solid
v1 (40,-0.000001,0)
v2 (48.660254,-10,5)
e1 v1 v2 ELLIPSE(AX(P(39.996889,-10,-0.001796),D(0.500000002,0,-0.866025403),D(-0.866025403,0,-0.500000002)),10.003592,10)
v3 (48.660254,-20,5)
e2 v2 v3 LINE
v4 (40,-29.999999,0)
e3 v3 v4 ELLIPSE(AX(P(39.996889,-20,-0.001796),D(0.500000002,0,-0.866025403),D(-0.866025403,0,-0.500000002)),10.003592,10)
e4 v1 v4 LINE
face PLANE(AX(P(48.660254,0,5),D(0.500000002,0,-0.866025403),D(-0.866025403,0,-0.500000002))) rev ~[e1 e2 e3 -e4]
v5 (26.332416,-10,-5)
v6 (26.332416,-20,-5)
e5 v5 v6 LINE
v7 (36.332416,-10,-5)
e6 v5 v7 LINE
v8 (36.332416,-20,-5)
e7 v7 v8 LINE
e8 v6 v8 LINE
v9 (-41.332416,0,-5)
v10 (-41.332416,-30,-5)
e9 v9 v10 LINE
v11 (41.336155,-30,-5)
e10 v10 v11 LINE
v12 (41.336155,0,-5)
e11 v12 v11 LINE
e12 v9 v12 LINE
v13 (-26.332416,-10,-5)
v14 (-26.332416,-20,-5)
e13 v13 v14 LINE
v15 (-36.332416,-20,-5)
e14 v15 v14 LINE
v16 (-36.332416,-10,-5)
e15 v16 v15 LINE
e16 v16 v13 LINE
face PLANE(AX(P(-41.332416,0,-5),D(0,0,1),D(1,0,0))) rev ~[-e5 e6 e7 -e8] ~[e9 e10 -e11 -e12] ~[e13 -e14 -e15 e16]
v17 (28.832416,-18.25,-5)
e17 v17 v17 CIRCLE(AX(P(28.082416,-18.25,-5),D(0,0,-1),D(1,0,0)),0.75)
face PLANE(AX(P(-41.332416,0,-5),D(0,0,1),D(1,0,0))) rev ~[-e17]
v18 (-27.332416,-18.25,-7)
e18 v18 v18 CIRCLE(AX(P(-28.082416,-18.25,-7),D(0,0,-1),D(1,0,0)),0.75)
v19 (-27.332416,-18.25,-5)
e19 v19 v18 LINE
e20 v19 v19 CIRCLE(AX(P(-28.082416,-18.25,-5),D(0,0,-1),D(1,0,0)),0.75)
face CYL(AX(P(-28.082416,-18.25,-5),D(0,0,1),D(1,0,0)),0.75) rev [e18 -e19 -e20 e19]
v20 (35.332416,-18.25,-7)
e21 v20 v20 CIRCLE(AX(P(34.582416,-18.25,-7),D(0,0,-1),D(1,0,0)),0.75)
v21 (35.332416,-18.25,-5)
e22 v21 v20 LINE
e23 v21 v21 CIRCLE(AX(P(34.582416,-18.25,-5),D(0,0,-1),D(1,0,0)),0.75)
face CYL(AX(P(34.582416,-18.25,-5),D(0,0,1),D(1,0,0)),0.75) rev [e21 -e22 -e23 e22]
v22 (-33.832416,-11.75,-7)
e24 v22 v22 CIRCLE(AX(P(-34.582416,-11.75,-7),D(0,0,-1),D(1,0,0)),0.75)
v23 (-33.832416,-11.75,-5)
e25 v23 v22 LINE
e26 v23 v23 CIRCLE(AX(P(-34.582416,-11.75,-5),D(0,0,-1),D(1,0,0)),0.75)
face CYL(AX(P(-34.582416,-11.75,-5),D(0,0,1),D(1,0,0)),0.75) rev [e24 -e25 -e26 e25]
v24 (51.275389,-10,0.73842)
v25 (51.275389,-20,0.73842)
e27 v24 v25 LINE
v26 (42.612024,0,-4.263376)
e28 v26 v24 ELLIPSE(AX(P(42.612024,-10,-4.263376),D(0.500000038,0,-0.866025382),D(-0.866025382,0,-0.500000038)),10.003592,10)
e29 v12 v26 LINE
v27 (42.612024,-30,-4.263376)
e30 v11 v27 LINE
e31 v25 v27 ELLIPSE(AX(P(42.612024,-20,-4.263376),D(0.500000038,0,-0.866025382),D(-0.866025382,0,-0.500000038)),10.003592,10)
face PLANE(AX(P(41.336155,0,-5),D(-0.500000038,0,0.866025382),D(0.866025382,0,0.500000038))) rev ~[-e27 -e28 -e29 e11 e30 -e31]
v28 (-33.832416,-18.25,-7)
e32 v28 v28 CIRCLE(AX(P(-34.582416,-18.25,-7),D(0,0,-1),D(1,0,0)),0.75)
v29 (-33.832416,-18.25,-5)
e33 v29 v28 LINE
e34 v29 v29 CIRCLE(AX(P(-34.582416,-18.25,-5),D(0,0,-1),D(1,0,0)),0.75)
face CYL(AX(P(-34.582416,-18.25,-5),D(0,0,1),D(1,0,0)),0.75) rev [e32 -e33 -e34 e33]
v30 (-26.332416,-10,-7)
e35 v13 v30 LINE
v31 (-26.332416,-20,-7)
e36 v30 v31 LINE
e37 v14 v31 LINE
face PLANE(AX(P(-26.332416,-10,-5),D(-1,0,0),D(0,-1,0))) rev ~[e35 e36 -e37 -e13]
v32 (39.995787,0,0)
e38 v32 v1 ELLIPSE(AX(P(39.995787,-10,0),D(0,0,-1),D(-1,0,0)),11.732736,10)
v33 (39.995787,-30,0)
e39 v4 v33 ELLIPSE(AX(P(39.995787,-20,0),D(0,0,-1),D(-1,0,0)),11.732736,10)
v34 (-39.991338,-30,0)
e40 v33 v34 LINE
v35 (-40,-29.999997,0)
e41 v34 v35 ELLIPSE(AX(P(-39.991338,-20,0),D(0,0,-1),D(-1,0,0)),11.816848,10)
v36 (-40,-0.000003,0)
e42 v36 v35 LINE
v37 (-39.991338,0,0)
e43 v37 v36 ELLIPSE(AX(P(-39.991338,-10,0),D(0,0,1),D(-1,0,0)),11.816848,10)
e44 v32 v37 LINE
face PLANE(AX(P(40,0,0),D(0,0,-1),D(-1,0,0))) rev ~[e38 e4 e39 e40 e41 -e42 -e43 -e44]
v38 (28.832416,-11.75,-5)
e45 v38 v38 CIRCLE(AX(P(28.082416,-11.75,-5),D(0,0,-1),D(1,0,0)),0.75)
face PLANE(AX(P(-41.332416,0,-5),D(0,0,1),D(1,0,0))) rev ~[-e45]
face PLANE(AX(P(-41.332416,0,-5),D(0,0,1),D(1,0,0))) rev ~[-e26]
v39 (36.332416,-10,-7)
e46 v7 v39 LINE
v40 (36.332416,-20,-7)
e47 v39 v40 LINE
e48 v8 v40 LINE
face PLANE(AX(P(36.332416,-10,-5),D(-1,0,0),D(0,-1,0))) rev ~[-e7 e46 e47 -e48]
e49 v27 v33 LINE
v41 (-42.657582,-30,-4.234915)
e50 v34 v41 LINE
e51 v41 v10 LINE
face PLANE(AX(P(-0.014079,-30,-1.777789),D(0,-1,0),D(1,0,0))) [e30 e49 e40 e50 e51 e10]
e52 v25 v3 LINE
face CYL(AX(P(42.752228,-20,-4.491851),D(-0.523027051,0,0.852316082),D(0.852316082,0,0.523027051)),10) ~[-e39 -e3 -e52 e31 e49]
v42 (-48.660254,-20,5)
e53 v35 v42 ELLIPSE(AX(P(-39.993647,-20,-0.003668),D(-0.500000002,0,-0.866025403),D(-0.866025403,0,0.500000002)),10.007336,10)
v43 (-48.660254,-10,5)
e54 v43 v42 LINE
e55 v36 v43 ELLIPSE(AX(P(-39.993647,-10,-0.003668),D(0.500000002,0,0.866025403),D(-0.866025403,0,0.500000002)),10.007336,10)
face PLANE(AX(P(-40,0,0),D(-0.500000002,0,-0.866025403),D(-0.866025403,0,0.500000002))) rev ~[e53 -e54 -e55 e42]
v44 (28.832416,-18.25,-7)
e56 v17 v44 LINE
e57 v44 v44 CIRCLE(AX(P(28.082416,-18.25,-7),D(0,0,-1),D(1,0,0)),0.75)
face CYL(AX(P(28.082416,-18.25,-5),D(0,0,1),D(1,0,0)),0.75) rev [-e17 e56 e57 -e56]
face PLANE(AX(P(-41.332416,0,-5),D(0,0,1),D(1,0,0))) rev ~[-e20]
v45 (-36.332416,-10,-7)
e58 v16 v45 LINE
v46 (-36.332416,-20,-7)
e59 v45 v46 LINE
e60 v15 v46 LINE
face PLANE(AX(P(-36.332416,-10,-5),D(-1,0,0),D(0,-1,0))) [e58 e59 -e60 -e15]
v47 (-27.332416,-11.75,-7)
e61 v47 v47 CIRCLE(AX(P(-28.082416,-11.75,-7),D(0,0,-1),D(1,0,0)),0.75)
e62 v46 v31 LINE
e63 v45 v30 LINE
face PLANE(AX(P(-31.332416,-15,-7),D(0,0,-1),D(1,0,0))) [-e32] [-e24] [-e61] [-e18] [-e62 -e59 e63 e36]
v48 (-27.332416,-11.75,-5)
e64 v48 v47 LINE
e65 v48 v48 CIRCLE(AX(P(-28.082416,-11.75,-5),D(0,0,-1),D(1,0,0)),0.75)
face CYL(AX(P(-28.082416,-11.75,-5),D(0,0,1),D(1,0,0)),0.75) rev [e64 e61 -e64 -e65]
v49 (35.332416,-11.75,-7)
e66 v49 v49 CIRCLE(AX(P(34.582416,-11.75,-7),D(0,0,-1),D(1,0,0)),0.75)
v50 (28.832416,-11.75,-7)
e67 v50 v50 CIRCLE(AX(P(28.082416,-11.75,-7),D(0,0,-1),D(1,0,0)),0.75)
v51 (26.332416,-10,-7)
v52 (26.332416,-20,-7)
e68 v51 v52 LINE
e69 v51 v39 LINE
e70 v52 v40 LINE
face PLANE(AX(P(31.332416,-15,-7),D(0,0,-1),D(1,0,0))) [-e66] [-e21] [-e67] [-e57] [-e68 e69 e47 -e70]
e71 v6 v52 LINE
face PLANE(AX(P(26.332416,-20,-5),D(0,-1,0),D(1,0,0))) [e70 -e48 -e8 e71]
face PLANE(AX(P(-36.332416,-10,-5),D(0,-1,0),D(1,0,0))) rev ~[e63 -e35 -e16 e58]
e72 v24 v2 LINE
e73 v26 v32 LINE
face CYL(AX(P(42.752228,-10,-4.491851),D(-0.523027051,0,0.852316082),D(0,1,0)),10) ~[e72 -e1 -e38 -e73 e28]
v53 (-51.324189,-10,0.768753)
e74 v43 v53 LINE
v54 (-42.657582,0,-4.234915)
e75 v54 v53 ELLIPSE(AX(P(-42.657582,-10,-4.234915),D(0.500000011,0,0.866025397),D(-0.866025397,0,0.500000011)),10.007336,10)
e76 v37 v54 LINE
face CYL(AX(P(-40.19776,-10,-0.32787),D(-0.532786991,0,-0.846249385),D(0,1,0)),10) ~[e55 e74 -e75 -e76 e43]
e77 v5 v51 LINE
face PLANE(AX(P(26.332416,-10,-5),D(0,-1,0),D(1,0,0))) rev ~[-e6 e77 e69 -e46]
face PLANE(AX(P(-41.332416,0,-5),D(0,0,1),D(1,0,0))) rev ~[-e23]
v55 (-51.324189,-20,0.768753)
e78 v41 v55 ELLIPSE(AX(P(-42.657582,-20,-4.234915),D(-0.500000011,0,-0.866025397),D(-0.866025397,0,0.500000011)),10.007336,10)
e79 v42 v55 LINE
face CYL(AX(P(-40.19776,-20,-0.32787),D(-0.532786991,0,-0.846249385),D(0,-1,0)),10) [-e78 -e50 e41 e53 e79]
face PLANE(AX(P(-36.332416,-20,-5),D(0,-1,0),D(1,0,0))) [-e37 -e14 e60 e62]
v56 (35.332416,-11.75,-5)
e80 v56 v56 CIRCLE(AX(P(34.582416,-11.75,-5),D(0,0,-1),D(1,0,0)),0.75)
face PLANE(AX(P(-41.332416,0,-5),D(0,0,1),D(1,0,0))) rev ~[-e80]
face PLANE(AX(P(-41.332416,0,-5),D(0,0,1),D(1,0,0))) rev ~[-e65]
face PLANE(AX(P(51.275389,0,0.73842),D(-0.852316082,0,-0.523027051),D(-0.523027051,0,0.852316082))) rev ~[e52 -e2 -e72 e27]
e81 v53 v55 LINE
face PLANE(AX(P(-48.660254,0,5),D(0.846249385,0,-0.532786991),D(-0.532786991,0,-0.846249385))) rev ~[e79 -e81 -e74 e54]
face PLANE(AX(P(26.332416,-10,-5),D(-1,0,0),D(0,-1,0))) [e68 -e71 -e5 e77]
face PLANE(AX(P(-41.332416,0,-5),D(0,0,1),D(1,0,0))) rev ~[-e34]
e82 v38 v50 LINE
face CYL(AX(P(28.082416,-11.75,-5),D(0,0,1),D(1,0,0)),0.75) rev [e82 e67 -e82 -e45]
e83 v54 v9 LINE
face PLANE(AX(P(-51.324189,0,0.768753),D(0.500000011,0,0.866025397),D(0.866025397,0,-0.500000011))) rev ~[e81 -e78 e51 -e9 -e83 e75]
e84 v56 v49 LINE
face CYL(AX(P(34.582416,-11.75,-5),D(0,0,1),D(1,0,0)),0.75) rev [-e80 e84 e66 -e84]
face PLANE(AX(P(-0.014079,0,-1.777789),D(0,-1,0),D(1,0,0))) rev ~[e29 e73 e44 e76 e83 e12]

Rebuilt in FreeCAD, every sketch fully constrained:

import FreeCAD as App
import Part
import Sketcher
Q = App.Units.Quantity


def edges_at(feature, points):
    """Names of the edges that pass closest to the given points."""
    edges = feature.Shape.Edges
    near = lambda p: min(range(len(edges)), key=lambda i: edges[i].distToShape(Part.Vertex(*p))[0])
    return sorted({f"Edge{near(p) + 1}" for p in points})

doc = App.newDocument("Part")
params = doc.addObject("Spreadsheet::Sheet", "Params")
for row, (alias, value) in enumerate([
    ("sketch1_width", "80 mm"),
    ("sketch1_length", "10 mm"),
    ("sketch1_length2", "5 mm"),
    ("pad1_length", "30 mm"),
    ("fillet_radius", "10 mm"),
    ("fillet2_radius", "10 mm"),
    ("fillet3_radius", "10 mm"),
    ("fillet4_radius", "10 mm"),
    ("sketch2_diameter", "1.5 mm"),
    ("sketch2_width", "10 mm"),
    ("pad2_length", "2 mm"),
], start=1):
    params.set(f"A{row}", alias)
    params.set(f"B{row}", "=" + value)
    params.setAlias(f"B{row}", alias)

body = doc.addObject("PartDesign::Body", "Body")

# Sketch on XZ plane
sketch1 = body.newObject("Sketcher::SketchObject", "Sketch")
sketch1.AttachmentSupport = (doc.getObject("XZ_Plane"), [""])
sketch1.MapMode = "FlatFace"
sketch1.addGeometry(Part.LineSegment(App.Vector(40, 0, 0), App.Vector(-40, 0, 0)), False)
sketch1.addGeometry(Part.LineSegment(App.Vector(-40, 0, 0), App.Vector(-48.7, 5, 0)), False)
sketch1.addGeometry(Part.LineSegment(App.Vector(-48.7, 5, 0), App.Vector(-51.3, 0.8, 0)), False)
sketch1.addGeometry(Part.LineSegment(App.Vector(-51.3, 0.8, 0), App.Vector(-41.3, -5, 0)), False)
sketch1.addGeometry(Part.LineSegment(App.Vector(-41.3, -5, 0), App.Vector(41.3, -5, 0)), False)
sketch1.addGeometry(Part.LineSegment(App.Vector(41.3, -5, 0), App.Vector(51.3, 0.7, 0)), False)
sketch1.addGeometry(Part.LineSegment(App.Vector(51.3, 0.7, 0), App.Vector(48.7, 5, 0)), False)
sketch1.addGeometry(Part.LineSegment(App.Vector(48.7, 5, 0), App.Vector(40, 0, 0)), False)
sketch1.addConstraint(Sketcher.Constraint("Coincident", 0, 2, 1, 1))
sketch1.addConstraint(Sketcher.Constraint("Coincident", 1, 2, 2, 1))
sketch1.addConstraint(Sketcher.Constraint("Coincident", 2, 2, 3, 1))
sketch1.addConstraint(Sketcher.Constraint("Coincident", 3, 2, 4, 1))
sketch1.addConstraint(Sketcher.Constraint("Coincident", 4, 2, 5, 1))
sketch1.addConstraint(Sketcher.Constraint("Coincident", 5, 2, 6, 1))
sketch1.addConstraint(Sketcher.Constraint("Coincident", 6, 2, 7, 1))
sketch1.addConstraint(Sketcher.Constraint("Coincident", 7, 2, 0, 1))
sketch1.addConstraint(Sketcher.Constraint("Horizontal", 0))
sketch1.addConstraint(Sketcher.Constraint("Horizontal", 4))
sketch1.addConstraint(Sketcher.Constraint("Symmetric", 0, 2, 7, 2, -1, 1))
sketch1.addConstraint(Sketcher.Constraint("Symmetric", 1, 2, 6, 2, -2))
sketch1.addConstraint(Sketcher.Constraint("Parallel", 1, 3))
sketch1.addConstraint(Sketcher.Constraint("Parallel", 5, 7))
sketch1.addConstraint(Sketcher.Constraint("Equal", 2, 6))
sketch1.addConstraint(Sketcher.Constraint("DistanceX", 0, 2, 0, 1, 80.0))
sketch1.addConstraint(Sketcher.Constraint("Angle", 1, Q("150 deg")))
sketch1.addConstraint(Sketcher.Constraint("Distance", 1, 10.0))
sketch1.addConstraint(Sketcher.Constraint("Distance", 2, 5.0))
sketch1.addConstraint(Sketcher.Constraint("DistanceY", 3, 2, -1, 1, 5.0))
sketch1.addConstraint(Sketcher.Constraint("DistanceX", 4, 1, 4, 2, 82.668571))
sketch1.addConstraint(Sketcher.Constraint("DistanceX", 4, 2, 6, 2, 7.324099))
sketch1.setExpression("Constraints[15]", "Params.sketch1_width")
sketch1.setExpression("Constraints[17]", "Params.sketch1_length")
sketch1.setExpression("Constraints[18]", "Params.sketch1_length2")
pad1 = body.newObject("PartDesign::Pad", "Pad")
pad1.Profile = sketch1
pad1.setExpression("Length", "Params.pad1_length")
doc.recompute()

fillet = body.newObject("PartDesign::Fillet", "Fillet")
fillet.Base = (pad1, edges_at(pad1, [(49.968, -30, 2.869)]))
fillet.setExpression("Radius", "Params.fillet_radius")
doc.recompute()

fillet2 = body.newObject("PartDesign::Fillet", "Fillet001")
fillet2.Base = (fillet, edges_at(fillet, [(49.968, 0, 2.869)]))
fillet2.setExpression("Radius", "Params.fillet2_radius")
doc.recompute()

fillet3 = body.newObject("PartDesign::Fillet", "Fillet002")
fillet3.Base = (fillet2, edges_at(fillet2, [(-49.992, 0, 2.884)]))
fillet3.setExpression("Radius", "Params.fillet3_radius")
doc.recompute()

fillet4 = body.newObject("PartDesign::Fillet", "Fillet003")
fillet4.Base = (fillet3, edges_at(fillet3, [(-49.992, -30, 2.884)]))
fillet4.setExpression("Radius", "Params.fillet4_radius")

# Sketch on XY plane
sketch2 = body.newObject("Sketcher::SketchObject", "Sketch001")
sketch2.AttachmentSupport = (doc.getObject("XY_Plane"), [""])
sketch2.MapMode = "FlatFace"
sketch2.AttachmentOffset = App.Placement(App.Vector(0, 0, -5), App.Rotation())
sketch2.addGeometry(Part.LineSegment(App.Vector(26.3, -20, 0), App.Vector(26.3, -10, 0)), False)
sketch2.addGeometry(Part.LineSegment(App.Vector(26.3, -10, 0), App.Vector(36.3, -10, 0)), False)
sketch2.addGeometry(Part.LineSegment(App.Vector(36.3, -10, 0), App.Vector(36.3, -20, 0)), False)
sketch2.addGeometry(Part.LineSegment(App.Vector(36.3, -20, 0), App.Vector(26.3, -20, 0)), False)
sketch2.addGeometry(Part.Circle(App.Vector(28.1, -11.8, 0), App.Vector(0, 0, 1), 0.8), False)
sketch2.addGeometry(Part.Circle(App.Vector(34.6, -11.8, 0), App.Vector(0, 0, 1), 0.8), False)
sketch2.addGeometry(Part.Circle(App.Vector(28.1, -18.2, 0), App.Vector(0, 0, 1), 0.8), False)
sketch2.addGeometry(Part.Circle(App.Vector(34.6, -18.2, 0), App.Vector(0, 0, 1), 0.8), False)
sketch2.addGeometry(Part.LineSegment(App.Vector(-36.3, -20, 0), App.Vector(-36.3, -10, 0)), False)
sketch2.addGeometry(Part.LineSegment(App.Vector(-36.3, -10, 0), App.Vector(-26.3, -10, 0)), False)
sketch2.addGeometry(Part.LineSegment(App.Vector(-26.3, -10, 0), App.Vector(-26.3, -20, 0)), False)
sketch2.addGeometry(Part.LineSegment(App.Vector(-26.3, -20, 0), App.Vector(-36.3, -20, 0)), False)
sketch2.addGeometry(Part.Circle(App.Vector(-34.6, -11.8, 0), App.Vector(0, 0, 1), 0.8), False)
sketch2.addGeometry(Part.Circle(App.Vector(-28.1, -11.8, 0), App.Vector(0, 0, 1), 0.8), False)
sketch2.addGeometry(Part.Circle(App.Vector(-34.6, -18.2, 0), App.Vector(0, 0, 1), 0.8), False)
sketch2.addGeometry(Part.Circle(App.Vector(-28.1, -18.2, 0), App.Vector(0, 0, 1), 0.8), False)
sketch2.addConstraint(Sketcher.Constraint("Coincident", 0, 2, 1, 1))
sketch2.addConstraint(Sketcher.Constraint("Coincident", 1, 2, 2, 1))
sketch2.addConstraint(Sketcher.Constraint("Coincident", 2, 2, 3, 1))
sketch2.addConstraint(Sketcher.Constraint("Coincident", 3, 2, 0, 1))
sketch2.addConstraint(Sketcher.Constraint("Coincident", 8, 2, 9, 1))
sketch2.addConstraint(Sketcher.Constraint("Coincident", 9, 2, 10, 1))
sketch2.addConstraint(Sketcher.Constraint("Coincident", 10, 2, 11, 1))
sketch2.addConstraint(Sketcher.Constraint("Coincident", 11, 2, 8, 1))
sketch2.addConstraint(Sketcher.Constraint("Vertical", 0))
sketch2.addConstraint(Sketcher.Constraint("Horizontal", 1))
sketch2.addConstraint(Sketcher.Constraint("Vertical", 2))
sketch2.addConstraint(Sketcher.Constraint("Horizontal", 3))
sketch2.addConstraint(Sketcher.Constraint("Vertical", 8))
sketch2.addConstraint(Sketcher.Constraint("Horizontal", 9))
sketch2.addConstraint(Sketcher.Constraint("Vertical", 10))
sketch2.addConstraint(Sketcher.Constraint("Horizontal", 11))
sketch2.addConstraint(Sketcher.Constraint("Equal", 4, 5))
sketch2.addConstraint(Sketcher.Constraint("Equal", 5, 6))
sketch2.addConstraint(Sketcher.Constraint("Equal", 6, 7))
sketch2.addConstraint(Sketcher.Constraint("Equal", 7, 12))
sketch2.addConstraint(Sketcher.Constraint("Equal", 12, 13))
sketch2.addConstraint(Sketcher.Constraint("Equal", 13, 14))
sketch2.addConstraint(Sketcher.Constraint("Equal", 14, 15))
sketch2.addConstraint(Sketcher.Constraint("Symmetric", 5, 3, 12, 3, -2))
sketch2.addConstraint(Sketcher.Constraint("Symmetric", 4, 3, 13, 3, -2))
sketch2.addConstraint(Sketcher.Constraint("Symmetric", 7, 3, 14, 3, -2))
sketch2.addConstraint(Sketcher.Constraint("Symmetric", 6, 3, 15, 3, -2))
sketch2.addConstraint(Sketcher.Constraint("Symmetric", 1, 2, 8, 2, -2))
sketch2.addConstraint(Sketcher.Constraint("Symmetric", 3, 2, 10, 2, -2))
sketch2.addConstraint(Sketcher.Constraint("Horizontal", 4, 3, 5, 3))
sketch2.addConstraint(Sketcher.Constraint("Horizontal", 6, 3, 7, 3))
sketch2.addConstraint(Sketcher.Constraint("Vertical", 4, 3, 6, 3))
sketch2.addConstraint(Sketcher.Constraint("Vertical", 5, 3, 7, 3))
sketch2.addConstraint(Sketcher.Constraint("Equal", 11, 0))
sketch2.addConstraint(Sketcher.Constraint("Diameter", 4, 1.5))
sketch2.addConstraint(Sketcher.Constraint("DistanceX", 1, 1, 1, 2, 10.0))
sketch2.addConstraint(Sketcher.Constraint("DistanceY", 0, 2, -1, 1, 10.0))
sketch2.addConstraint(Sketcher.Constraint("DistanceX", 4, 3, 5, 3, 6.5))
sketch2.addConstraint(Sketcher.Constraint("DistanceY", 6, 3, 4, 3, 6.5))
sketch2.addConstraint(Sketcher.Constraint("DistanceY", 4, 3, -1, 1, 11.75))
sketch2.addConstraint(Sketcher.Constraint("DistanceX", 0, 2, 4, 3, 1.75))
sketch2.addConstraint(Sketcher.Constraint("DistanceX", 13, 3, 4, 3, 56.164832))
sketch2.setExpression("Constraints[34]", "Params.sketch2_diameter")
sketch2.setExpression("Constraints[35]", "Params.sketch2_width")
pad2 = body.newObject("PartDesign::Pad", "Pad001")
pad2.Profile = sketch2
pad2.setExpression("Length", "Params.pad2_length")
pad2.Reversed = True

doc.recompute()
